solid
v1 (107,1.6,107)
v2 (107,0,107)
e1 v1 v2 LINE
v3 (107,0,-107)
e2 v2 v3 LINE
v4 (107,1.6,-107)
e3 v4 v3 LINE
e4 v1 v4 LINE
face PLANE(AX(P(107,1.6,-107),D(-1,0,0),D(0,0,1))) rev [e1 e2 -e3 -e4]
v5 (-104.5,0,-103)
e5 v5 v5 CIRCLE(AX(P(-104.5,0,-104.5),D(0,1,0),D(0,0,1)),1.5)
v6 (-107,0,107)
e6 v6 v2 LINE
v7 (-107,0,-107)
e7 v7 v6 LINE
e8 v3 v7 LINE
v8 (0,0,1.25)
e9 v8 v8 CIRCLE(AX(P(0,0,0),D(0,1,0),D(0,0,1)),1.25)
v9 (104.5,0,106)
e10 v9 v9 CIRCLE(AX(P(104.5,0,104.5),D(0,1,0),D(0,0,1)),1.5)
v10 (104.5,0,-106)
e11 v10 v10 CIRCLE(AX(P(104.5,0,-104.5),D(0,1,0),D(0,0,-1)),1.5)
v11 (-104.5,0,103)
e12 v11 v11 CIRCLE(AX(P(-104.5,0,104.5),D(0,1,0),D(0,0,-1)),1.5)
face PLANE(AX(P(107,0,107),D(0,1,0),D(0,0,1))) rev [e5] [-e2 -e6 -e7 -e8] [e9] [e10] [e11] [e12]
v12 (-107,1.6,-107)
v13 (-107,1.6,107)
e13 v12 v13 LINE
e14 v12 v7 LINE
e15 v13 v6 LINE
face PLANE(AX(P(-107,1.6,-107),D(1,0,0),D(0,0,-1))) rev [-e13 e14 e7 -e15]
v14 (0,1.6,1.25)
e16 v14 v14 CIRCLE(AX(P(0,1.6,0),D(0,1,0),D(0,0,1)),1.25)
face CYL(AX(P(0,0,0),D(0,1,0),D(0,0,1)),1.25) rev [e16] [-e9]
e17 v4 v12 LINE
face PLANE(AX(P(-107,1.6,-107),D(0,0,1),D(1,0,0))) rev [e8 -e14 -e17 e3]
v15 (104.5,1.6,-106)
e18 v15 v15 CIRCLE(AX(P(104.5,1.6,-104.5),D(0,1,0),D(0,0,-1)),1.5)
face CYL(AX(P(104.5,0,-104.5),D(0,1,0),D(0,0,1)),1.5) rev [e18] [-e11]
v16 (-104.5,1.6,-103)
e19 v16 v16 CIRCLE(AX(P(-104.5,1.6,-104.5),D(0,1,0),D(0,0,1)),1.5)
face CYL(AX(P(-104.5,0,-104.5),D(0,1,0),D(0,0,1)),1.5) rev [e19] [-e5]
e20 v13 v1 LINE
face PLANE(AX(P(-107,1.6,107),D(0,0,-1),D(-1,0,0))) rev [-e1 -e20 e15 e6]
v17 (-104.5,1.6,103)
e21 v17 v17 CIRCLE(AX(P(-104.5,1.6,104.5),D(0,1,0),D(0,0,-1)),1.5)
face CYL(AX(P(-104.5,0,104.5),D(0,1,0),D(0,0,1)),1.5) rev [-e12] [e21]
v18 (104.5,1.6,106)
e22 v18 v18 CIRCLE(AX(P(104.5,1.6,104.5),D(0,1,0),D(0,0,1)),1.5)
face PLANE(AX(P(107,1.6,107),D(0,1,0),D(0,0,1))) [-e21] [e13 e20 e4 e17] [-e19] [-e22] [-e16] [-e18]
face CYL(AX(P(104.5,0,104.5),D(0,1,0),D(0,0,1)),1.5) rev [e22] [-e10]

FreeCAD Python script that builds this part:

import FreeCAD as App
import Part
import Sketcher
Q = App.Units.Quantity


def add_polygon(sketch, points):
    """Adds a closed chain of lines whose ends are joined by coincident constraints."""
    first, n = sketch.GeometryCount, len(points)
    for a, b in zip(points, points[1:] + points[:1]):
        sketch.addGeometry(Part.LineSegment(App.Vector(*a, 0), App.Vector(*b, 0)), False)
    for i in range(n):
        sketch.addConstraint(Sketcher.Constraint("Coincident", first + i, 2, first + (i + 1) % n, 1))

doc = App.newDocument("Part")
body = doc.addObject("PartDesign::Body", "Body")

sketch1 = body.newObject("Sketcher::SketchObject", "Sketch")
sketch1.AttachmentSupport = (doc.getObject("XZ_Plane"), [""])
sketch1.MapMode = "FlatFace"
add_polygon(sketch1, [(-107, -107), (-107, 107), (107, 107), (107, -107)])
sketch1.addConstraint(Sketcher.Constraint("Vertical", 0))
sketch1.addConstraint(Sketcher.Constraint("Horizontal", 1))
sketch1.addConstraint(Sketcher.Constraint("Vertical", 2))
sketch1.addConstraint(Sketcher.Constraint("Horizontal", 3))
sketch1.addConstraint(Sketcher.Constraint("Symmetric", 0, 2, 2, 2, -1, 1))
sketch1.addConstraint(Sketcher.Constraint("Equal", 3, 0))
sketch1.addConstraint(Sketcher.Constraint("DistanceX", 1, 1, 1, 2, Q("214 mm")))
pad1 = body.newObject("PartDesign::Pad", "Pad")
pad1.Profile = sketch1
pad1.Length = 1.6
pad1.Reversed = True

sketch2 = body.newObject("Sketcher::SketchObject", "Sketch001")
sketch2.AttachmentSupport = (doc.getObject("XZ_Plane"), [""])
sketch2.MapMode = "FlatFace"
sketch2.AttachmentOffset = App.Placement(App.Vector(0, 0, -1.6), App.Rotation())
sketch2.addGeometry(Part.Circle(App.Vector(-104.5, -104.5, 0), App.Vector(0, 0, 1), 1.5), False)
sketch2.addGeometry(Part.Circle(App.Vector(104.5, -104.5, 0), App.Vector(0, 0, 1), 1.5), False)
sketch2.addGeometry(Part.Circle(App.Vector(104.5, 104.5, 0), App.Vector(0, 0, 1), 1.5), False)
sketch2.addGeometry(Part.Circle(App.Vector(-104.5, 104.5, 0), App.Vector(0, 0, 1), 1.5), False)
sketch2.addGeometry(Part.Circle(App.Vector(0, 0, 0), App.Vector(0, 0, 1), 1.2), False)
sketch2.addConstraint(Sketcher.Constraint("Coincident", 4, 3, -1, 1))
sketch2.addConstraint(Sketcher.Constraint("Equal", 0, 1))
sketch2.addConstraint(Sketcher.Constraint("Equal", 1, 2))
sketch2.addConstraint(Sketcher.Constraint("Equal", 2, 3))
sketch2.addConstraint(Sketcher.Constraint("Symmetric", 0, 3, 2, 3, -1, 1))
sketch2.addConstraint(Sketcher.Constraint("Symmetric", 1, 3, 3, 3, -1, 1))
sketch2.addConstraint(Sketcher.Constraint("Symmetric", 0, 3, 1, 3, -2))
sketch2.addConstraint(Sketcher.Constraint("Diameter", 0, Q("3 mm")))
sketch2.addConstraint(Sketcher.Constraint("Diameter", 4, Q("2.5 mm")))
sketch2.addConstraint(Sketcher.Constraint("DistanceX", 0, 3, 1, 3, Q("209 mm")))
sketch2.addConstraint(Sketcher.Constraint("DistanceY", 1, 3, 2, 3, Q("209 mm")))
pocket1 = body.newObject("PartDesign::Pocket", "Pocket")
pocket1.Profile = sketch2
pocket1.Type = "ThroughAll"
pocket1.Reversed = True

doc.recompute()
